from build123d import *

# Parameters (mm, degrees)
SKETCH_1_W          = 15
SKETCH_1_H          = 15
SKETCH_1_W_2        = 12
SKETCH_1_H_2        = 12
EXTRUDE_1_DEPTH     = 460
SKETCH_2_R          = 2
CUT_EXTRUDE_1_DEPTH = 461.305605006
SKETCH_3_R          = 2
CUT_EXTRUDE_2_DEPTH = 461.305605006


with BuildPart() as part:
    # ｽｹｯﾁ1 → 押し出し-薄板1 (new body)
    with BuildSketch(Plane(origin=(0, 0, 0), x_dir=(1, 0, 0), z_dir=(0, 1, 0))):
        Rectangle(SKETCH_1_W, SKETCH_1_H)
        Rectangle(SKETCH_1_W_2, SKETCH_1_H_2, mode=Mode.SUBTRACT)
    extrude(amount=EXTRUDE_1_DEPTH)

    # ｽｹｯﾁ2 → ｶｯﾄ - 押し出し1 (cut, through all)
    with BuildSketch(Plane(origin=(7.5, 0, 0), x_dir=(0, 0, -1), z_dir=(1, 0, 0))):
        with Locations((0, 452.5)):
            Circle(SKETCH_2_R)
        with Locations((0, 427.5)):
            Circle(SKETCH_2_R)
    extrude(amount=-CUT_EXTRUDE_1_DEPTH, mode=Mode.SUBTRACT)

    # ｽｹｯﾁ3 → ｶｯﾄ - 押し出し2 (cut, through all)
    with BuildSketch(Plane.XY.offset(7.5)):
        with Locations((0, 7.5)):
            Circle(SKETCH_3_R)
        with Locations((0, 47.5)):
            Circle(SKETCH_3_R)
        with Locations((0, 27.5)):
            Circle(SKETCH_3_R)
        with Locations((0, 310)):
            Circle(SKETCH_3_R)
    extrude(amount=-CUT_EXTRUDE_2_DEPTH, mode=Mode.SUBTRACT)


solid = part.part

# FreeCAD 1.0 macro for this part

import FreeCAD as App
import Part
import Sketcher

V = App.Vector

doc = App.newDocument("Part")
body = doc.addObject("PartDesign::Body", "Body")

# Sketch on XZ plane
sketch1 = body.newObject("Sketcher::SketchObject", "Sketch")
sketch1.AttachmentSupport = (doc.getObject("XZ_Plane"), [""])
sketch1.MapMode = "FlatFace"
sketch1.addGeometry(Part.LineSegment(V(-8, -8, 0), V(-8, 8, 0)), False)
sketch1.addGeometry(Part.LineSegment(V(-8, 8, 0), V(8, 8, 0)), False)
sketch1.addGeometry(Part.LineSegment(V(8, 8, 0), V(8, -8, 0)), False)
sketch1.addGeometry(Part.LineSegment(V(8, -8, 0), V(-8, -8, 0)), False)
sketch1.addGeometry(Part.LineSegment(V(6, 6, 0), V(-6, 6, 0)), False)
sketch1.addGeometry(Part.LineSegment(V(-6, 6, 0), V(-6, -6, 0)), False)
sketch1.addGeometry(Part.LineSegment(V(-6, -6, 0), V(6, -6, 0)), False)
sketch1.addGeometry(Part.LineSegment(V(6, -6, 0), V(6, 6, 0)), False)
sketch1.addConstraint(Sketcher.Constraint("Coincident", 0, 2, 1, 1))
sketch1.addConstraint(Sketcher.Constraint("Coincident", 1, 2, 2, 1))
sketch1.addConstraint(Sketcher.Constraint("Coincident", 2, 2, 3, 1))
sketch1.addConstraint(Sketcher.Constraint("Coincident", 3, 2, 0, 1))
sketch1.addConstraint(Sketcher.Constraint("Coincident", 4, 2, 5, 1))
sketch1.addConstraint(Sketcher.Constraint("Coincident", 5, 2, 6, 1))
sketch1.addConstraint(Sketcher.Constraint("Coincident", 6, 2, 7, 1))
sketch1.addConstraint(Sketcher.Constraint("Coincident", 7, 2, 4, 1))
sketch1.addConstraint(Sketcher.Constraint("Vertical", 0))
sketch1.addConstraint(Sketcher.Constraint("Horizontal", 1))
sketch1.addConstraint(Sketcher.Constraint("Vertical", 2))
sketch1.addConstraint(Sketcher.Constraint("Horizontal", 3))
sketch1.addConstraint(Sketcher.Constraint("Horizontal", 4))
sketch1.addConstraint(Sketcher.Constraint("Vertical", 5))
sketch1.addConstraint(Sketcher.Constraint("Horizontal", 6))
sketch1.addConstraint(Sketcher.Constraint("Vertical", 7))
sketch1.addConstraint(Sketcher.Constraint("Symmetric", 0, 2, 2, 2, -1, 1))
sketch1.addConstraint(Sketcher.Constraint("Symmetric", 4, 2, 6, 2, -1, 1))
sketch1.addConstraint(Sketcher.Constraint("Equal", 3, 0))
sketch1.addConstraint(Sketcher.Constraint("Equal", 6, 5))
sketch1.addConstraint(Sketcher.Constraint("DistanceX", 1, 1, 1, 2, 15.0))
sketch1.addConstraint(Sketcher.Constraint("DistanceX", 4, 2, 4, 1, 12.0))
pad1 = body.newObject("PartDesign::Pad", "Pad")
pad1.Profile = sketch1
pad1.Length = 460
pad1.Reversed = True

# Sketch on YZ plane
sketch2 = body.newObject("Sketcher::SketchObject", "Sketch001")
sketch2.AttachmentSupport = (doc.getObject("YZ_Plane"), [""])
sketch2.MapMode = "FlatFace"
sketch2.AttachmentOffset = App.Placement(V(0, 0, 7.5), App.Rotation())
sketch2.addGeometry(Part.Circle(V(452.5, 0, 0), V(0, 0, 1), 2), False)
sketch2.addGeometry(Part.Circle(V(427.5, 0, 0), V(0, 0, 1), 2), False)
sketch2.addConstraint(Sketcher.Constraint("Equal", 0, 1))
sketch2.addConstraint(Sketcher.Constraint("PointOnObject", 0, 3, -1))
sketch2.addConstraint(Sketcher.Constraint("PointOnObject", 1, 3, -1))
sketch2.addConstraint(Sketcher.Constraint("Diameter", 0, 4.0))
sketch2.addConstraint(Sketcher.Constraint("DistanceX", 1, 3, 0, 3, 25.0))
sketch2.addConstraint(Sketcher.Constraint("DistanceX", -1, 1, 0, 3, 452.5))
pocket1 = body.newObject("PartDesign::Pocket", "Pocket")
pocket1.Profile = sketch2
pocket1.Type = "ThroughAll"

# Sketch on XY plane
sketch3 = body.newObject("Sketcher::SketchObject", "Sketch002")
sketch3.AttachmentSupport = (doc.getObject("XY_Plane"), [""])
sketch3.MapMode = "FlatFace"
sketch3.AttachmentOffset = App.Placement(V(0, 0, 7.5), App.Rotation())
sketch3.addGeometry(Part.Circle(V(0, 7.5, 0), V(0, 0, 1), 2), False)
sketch3.addGeometry(Part.Circle(V(0, 47.5, 0), V(0, 0, 1), 2), False)
sketch3.addGeometry(Part.Circle(V(0, 27.5, 0), V(0, 0, 1), 2), False)
sketch3.addGeometry(Part.Circle(V(0, 310, 0), V(0, 0, 1), 2), False)
sketch3.addConstraint(Sketcher.Constraint("Equal", 0, 1))
sketch3.addConstraint(Sketcher.Constraint("Equal", 1, 2))
sketch3.addConstraint(Sketcher.Constraint("Equal", 2, 3))
sketch3.addConstraint(Sketcher.Constraint("PointOnObject", 0, 3, -2))
sketch3.addConstraint(Sketcher.Constraint("PointOnObject", 1, 3, -2))
sketch3.addConstraint(Sketcher.Constraint("PointOnObject", 2, 3, -2))
sketch3.addConstraint(Sketcher.Constraint("PointOnObject", 3, 3, -2))
sketch3.addConstraint(Sketcher.Constraint("Diameter", 0, 4.0))
sketch3.addConstraint(Sketcher.Constraint("DistanceY", -1, 1, 3, 3, 310.0))
sketch3.addConstraint(Sketcher.Constraint("DistanceY", 0, 3, 1, 3, 40.0))
sketch3.addConstraint(Sketcher.Constraint("DistanceY", 0, 3, 2, 3, 20.0))
sketch3.addConstraint(Sketcher.Constraint("DistanceY", -1, 1, 0, 3, 7.5))
pocket2 = body.newObject("PartDesign::Pocket", "Pocket001")
pocket2.Profile = sketch3
pocket2.Type = "ThroughAll"

doc.recompute()
